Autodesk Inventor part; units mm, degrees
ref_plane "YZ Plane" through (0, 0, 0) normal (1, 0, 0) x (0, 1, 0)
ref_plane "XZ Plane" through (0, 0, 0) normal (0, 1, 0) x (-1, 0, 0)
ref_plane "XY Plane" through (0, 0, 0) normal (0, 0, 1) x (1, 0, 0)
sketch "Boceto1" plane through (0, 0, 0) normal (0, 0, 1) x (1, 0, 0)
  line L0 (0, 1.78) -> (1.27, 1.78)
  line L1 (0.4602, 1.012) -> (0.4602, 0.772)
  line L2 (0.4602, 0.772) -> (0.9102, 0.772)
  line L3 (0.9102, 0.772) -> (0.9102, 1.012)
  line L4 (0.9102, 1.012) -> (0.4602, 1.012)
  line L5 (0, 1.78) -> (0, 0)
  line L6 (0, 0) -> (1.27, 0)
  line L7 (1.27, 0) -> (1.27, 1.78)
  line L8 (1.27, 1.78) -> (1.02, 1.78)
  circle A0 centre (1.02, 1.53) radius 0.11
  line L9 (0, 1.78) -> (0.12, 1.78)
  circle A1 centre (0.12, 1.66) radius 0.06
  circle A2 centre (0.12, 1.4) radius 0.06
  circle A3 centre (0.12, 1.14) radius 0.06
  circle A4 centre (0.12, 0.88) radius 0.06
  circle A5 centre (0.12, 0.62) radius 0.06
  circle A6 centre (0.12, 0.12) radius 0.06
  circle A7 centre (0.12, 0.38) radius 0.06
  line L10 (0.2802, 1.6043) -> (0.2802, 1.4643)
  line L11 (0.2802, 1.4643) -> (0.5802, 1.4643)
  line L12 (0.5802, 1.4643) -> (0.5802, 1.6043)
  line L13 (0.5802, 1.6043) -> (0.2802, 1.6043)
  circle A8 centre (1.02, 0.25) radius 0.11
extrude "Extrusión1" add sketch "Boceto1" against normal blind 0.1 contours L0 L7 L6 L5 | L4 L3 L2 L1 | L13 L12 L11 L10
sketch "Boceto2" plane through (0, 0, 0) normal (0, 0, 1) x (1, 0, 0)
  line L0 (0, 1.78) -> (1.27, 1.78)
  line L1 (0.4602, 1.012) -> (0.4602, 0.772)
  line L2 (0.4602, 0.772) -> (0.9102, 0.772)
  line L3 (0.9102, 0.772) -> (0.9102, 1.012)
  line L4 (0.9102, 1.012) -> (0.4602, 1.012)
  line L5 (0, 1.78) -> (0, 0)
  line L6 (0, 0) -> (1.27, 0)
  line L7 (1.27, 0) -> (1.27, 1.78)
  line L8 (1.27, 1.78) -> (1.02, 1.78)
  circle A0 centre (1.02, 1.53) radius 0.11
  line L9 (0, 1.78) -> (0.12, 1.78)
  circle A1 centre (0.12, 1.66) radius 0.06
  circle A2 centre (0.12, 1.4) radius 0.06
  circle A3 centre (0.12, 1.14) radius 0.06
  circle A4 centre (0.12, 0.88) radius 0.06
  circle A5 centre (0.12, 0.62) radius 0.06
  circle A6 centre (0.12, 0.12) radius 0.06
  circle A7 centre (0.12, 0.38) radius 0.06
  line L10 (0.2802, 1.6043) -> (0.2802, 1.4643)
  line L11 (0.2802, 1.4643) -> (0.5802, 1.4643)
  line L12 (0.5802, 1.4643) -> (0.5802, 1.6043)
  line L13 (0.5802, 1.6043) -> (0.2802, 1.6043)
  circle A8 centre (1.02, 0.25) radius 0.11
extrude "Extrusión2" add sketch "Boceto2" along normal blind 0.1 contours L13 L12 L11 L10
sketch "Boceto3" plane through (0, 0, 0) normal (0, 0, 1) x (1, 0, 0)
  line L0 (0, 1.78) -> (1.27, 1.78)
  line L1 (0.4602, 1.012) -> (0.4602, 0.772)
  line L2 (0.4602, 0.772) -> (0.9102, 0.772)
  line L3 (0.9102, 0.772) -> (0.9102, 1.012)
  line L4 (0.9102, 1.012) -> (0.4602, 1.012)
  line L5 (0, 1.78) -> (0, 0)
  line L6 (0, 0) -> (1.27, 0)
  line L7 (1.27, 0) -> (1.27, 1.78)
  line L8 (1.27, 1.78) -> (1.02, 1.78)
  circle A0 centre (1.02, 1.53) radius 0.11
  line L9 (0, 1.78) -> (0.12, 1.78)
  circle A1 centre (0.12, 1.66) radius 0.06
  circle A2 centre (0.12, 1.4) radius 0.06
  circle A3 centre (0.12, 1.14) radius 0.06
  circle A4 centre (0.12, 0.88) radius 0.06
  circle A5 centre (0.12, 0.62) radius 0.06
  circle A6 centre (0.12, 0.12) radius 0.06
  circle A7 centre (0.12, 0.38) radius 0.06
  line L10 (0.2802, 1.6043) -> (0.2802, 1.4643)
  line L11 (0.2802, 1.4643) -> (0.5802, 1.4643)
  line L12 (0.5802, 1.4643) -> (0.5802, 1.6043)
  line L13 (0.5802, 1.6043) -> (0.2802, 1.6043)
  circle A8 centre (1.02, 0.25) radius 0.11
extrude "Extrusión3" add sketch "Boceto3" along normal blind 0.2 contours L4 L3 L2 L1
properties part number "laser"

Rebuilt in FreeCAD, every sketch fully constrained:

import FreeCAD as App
import Part
import Sketcher
from FreeCAD import Vector
Q = App.Units.Quantity


def add_polygon(sketch, points):
    """Adds a closed chain of lines whose ends are joined by coincident constraints."""
    first, n = sketch.GeometryCount, len(points)
    for a, b in zip(points, points[1:] + points[:1]):
        sketch.addGeometry(Part.LineSegment(App.Vector(*a, 0), App.Vector(*b, 0)), False)
    for i in range(n):
        sketch.addConstraint(Sketcher.Constraint("Coincident", first + i, 2, first + (i + 1) % n, 1))

doc = App.newDocument("Part")
body = doc.addObject("PartDesign::Body", "Body")

# Sketch on XY plane
sketch1 = body.newObject("Sketcher::SketchObject", "Sketch")
sketch1.AttachmentSupport = (doc.getObject("XY_Plane"), [""])
sketch1.MapMode = "FlatFace"
add_polygon(sketch1, [(0, 1.78), (0, 0), (1.27, 0), (1.27, 1.78)])  # lines 0-3
sketch1.addGeometry(Part.Circle(Vector(0.12, 0.12, 0), Vector(0, 0, 1), 0.06), False)  # 4
sketch1.addGeometry(Part.Circle(Vector(0.12, 0.38, 0), Vector(0, 0, 1), 0.06), False)  # 5
sketch1.addGeometry(Part.Circle(Vector(0.12, 0.62, 0), Vector(0, 0, 1), 0.06), False)  # 6
sketch1.addGeometry(Part.Circle(Vector(0.12, 0.88, 0), Vector(0, 0, 1), 0.06), False)  # 7
sketch1.addGeometry(Part.Circle(Vector(1.02, 0.25, 0), Vector(0, 0, 1), 0.11), False)  # 8
sketch1.addGeometry(Part.Circle(Vector(0.12, 1.14, 0), Vector(0, 0, 1), 0.06), False)  # 9
sketch1.addGeometry(Part.Circle(Vector(0.12, 1.4, 0), Vector(0, 0, 1), 0.06), False)  # 10
sketch1.addGeometry(Part.Circle(Vector(0.12, 1.66, 0), Vector(0, 0, 1), 0.06), False)  # 11
sketch1.addGeometry(Part.Circle(Vector(1.02, 1.53, 0), Vector(0, 0, 1), 0.11), False)  # 12
sketch1.addConstraint([
    Sketcher.Constraint("Vertical", 0),
    Sketcher.Constraint("Horizontal", 1),
    Sketcher.Constraint("Vertical", 2),
    Sketcher.Constraint("Horizontal", 3),
    Sketcher.Constraint("Coincident", 0, 2, -1, 1),
    Sketcher.Constraint("Equal", 4, 5),
    Sketcher.Constraint("Equal", 5, 6),
    Sketcher.Constraint("Equal", 6, 7),
    Sketcher.Constraint("Equal", 7, 9),
    Sketcher.Constraint("Equal", 9, 10),
    Sketcher.Constraint("Equal", 10, 11),
    Sketcher.Constraint("Equal", 8, 12),
    Sketcher.Constraint("Vertical", 4, 3, 5, 3),
    Sketcher.Constraint("Vertical", 5, 3, 6, 3),
    Sketcher.Constraint("Vertical", 6, 3, 7, 3),
    Sketcher.Constraint("Vertical", 7, 3, 9, 3),
    Sketcher.Constraint("Vertical", 9, 3, 10, 3),
    Sketcher.Constraint("Vertical", 10, 3, 11, 3),
    Sketcher.Constraint("Vertical", 8, 3, 12, 3),
    Sketcher.Constraint("Diameter", 4, Q("0.12 mm")),
    Sketcher.Constraint("Diameter", 8, Q("0.22 mm")),
    Sketcher.Constraint("DistanceX", 1, 1, 1, 2, Q("1.27 mm")),
    Sketcher.Constraint("DistanceY", 0, 2, 0, 1, Q("1.78 mm")),
    Sketcher.Constraint("DistanceY", -1, 1, 10, 3, Q("1.4 mm")),
    Sketcher.Constraint("DistanceY", 4, 3, 6, 3, Q("0.5 mm")),
    Sketcher.Constraint("DistanceY", 5, 3, 7, 3, Q("0.5 mm")),
    Sketcher.Constraint("DistanceX", 4, 3, 8, 3, Q("0.9 mm")),
    Sketcher.Constraint("DistanceY", 7, 3, 2, 2, Q("0.9 mm")),
    Sketcher.Constraint("DistanceX", -1, 1, 4, 3, Q("0.12 mm")),
    Sketcher.Constraint("DistanceY", -1, 1, 4, 3, Q("0.12 mm")),
    Sketcher.Constraint("DistanceY", -1, 1, 8, 3, Q("0.25 mm")),
    Sketcher.Constraint("DistanceY", -1, 1, 9, 3, Q("1.14 mm")),
    Sketcher.Constraint("DistanceY", -1, 1, 11, 3, Q("1.66 mm")),
    Sketcher.Constraint("DistanceY", -1, 1, 12, 3, Q("1.53 mm")),
])
pad1 = body.newObject("PartDesign::Pad", "Pad")
pad1.Profile = sketch1
pad1.Length = 0.1
pad1.Reversed = True

# Sketch on XY plane
sketch2 = body.newObject("Sketcher::SketchObject", "Sketch001")
sketch2.AttachmentSupport = (doc.getObject("XY_Plane"), [""])
sketch2.MapMode = "FlatFace"
add_polygon(sketch2, [(0.5802, 1.6043), (0.2802, 1.6043), (0.2802, 1.4643), (0.5802, 1.4643)])  # lines 0-3
sketch2.addConstraint([
    Sketcher.Constraint("Horizontal", 0),
    Sketcher.Constraint("Vertical", 1),
    Sketcher.Constraint("Horizontal", 2),
    Sketcher.Constraint("Vertical", 3),
    Sketcher.Constraint("DistanceX", 0, 2, 0, 1, Q("0.3 mm")),
    Sketcher.Constraint("DistanceY", 1, 2, 1, 1, Q("0.14 mm")),
    Sketcher.Constraint("DistanceX", -1, 1, 0, 2, Q("0.2802 mm")),
    Sketcher.Constraint("DistanceY", -1, 1, 0, 2, Q("1.6043 mm")),
])
pad2 = body.newObject("PartDesign::Pad", "Pad001")
pad2.Profile = sketch2
pad2.Length = 0.1

# Sketch on XY plane
sketch3 = body.newObject("Sketcher::SketchObject", "Sketch002")
sketch3.AttachmentSupport = (doc.getObject("XY_Plane"), [""])
sketch3.MapMode = "FlatFace"
add_polygon(sketch3, [(0.9102, 1.012), (0.4602, 1.012), (0.4602, 0.772), (0.9102, 0.772)])  # lines 0-3
sketch3.addConstraint([
    Sketcher.Constraint("Horizontal", 0),
    Sketcher.Constraint("Vertical", 1),
    Sketcher.Constraint("Horizontal", 2),
    Sketcher.Constraint("Vertical", 3),
    Sketcher.Constraint("DistanceX", 0, 2, 0, 1, Q("0.45 mm")),
    Sketcher.Constraint("DistanceY", 1, 2, 1, 1, Q("0.24 mm")),
    Sketcher.Constraint("DistanceY", -1, 1, 0, 2, Q("1.012 mm")),
    Sketcher.Constraint("DistanceX", -1, 1, 0, 2, Q("0.4602 mm")),
])
pad3 = body.newObject("PartDesign::Pad", "Pad002")
pad3.Profile = sketch3
pad3.Length = 0.2

doc.recompute()
